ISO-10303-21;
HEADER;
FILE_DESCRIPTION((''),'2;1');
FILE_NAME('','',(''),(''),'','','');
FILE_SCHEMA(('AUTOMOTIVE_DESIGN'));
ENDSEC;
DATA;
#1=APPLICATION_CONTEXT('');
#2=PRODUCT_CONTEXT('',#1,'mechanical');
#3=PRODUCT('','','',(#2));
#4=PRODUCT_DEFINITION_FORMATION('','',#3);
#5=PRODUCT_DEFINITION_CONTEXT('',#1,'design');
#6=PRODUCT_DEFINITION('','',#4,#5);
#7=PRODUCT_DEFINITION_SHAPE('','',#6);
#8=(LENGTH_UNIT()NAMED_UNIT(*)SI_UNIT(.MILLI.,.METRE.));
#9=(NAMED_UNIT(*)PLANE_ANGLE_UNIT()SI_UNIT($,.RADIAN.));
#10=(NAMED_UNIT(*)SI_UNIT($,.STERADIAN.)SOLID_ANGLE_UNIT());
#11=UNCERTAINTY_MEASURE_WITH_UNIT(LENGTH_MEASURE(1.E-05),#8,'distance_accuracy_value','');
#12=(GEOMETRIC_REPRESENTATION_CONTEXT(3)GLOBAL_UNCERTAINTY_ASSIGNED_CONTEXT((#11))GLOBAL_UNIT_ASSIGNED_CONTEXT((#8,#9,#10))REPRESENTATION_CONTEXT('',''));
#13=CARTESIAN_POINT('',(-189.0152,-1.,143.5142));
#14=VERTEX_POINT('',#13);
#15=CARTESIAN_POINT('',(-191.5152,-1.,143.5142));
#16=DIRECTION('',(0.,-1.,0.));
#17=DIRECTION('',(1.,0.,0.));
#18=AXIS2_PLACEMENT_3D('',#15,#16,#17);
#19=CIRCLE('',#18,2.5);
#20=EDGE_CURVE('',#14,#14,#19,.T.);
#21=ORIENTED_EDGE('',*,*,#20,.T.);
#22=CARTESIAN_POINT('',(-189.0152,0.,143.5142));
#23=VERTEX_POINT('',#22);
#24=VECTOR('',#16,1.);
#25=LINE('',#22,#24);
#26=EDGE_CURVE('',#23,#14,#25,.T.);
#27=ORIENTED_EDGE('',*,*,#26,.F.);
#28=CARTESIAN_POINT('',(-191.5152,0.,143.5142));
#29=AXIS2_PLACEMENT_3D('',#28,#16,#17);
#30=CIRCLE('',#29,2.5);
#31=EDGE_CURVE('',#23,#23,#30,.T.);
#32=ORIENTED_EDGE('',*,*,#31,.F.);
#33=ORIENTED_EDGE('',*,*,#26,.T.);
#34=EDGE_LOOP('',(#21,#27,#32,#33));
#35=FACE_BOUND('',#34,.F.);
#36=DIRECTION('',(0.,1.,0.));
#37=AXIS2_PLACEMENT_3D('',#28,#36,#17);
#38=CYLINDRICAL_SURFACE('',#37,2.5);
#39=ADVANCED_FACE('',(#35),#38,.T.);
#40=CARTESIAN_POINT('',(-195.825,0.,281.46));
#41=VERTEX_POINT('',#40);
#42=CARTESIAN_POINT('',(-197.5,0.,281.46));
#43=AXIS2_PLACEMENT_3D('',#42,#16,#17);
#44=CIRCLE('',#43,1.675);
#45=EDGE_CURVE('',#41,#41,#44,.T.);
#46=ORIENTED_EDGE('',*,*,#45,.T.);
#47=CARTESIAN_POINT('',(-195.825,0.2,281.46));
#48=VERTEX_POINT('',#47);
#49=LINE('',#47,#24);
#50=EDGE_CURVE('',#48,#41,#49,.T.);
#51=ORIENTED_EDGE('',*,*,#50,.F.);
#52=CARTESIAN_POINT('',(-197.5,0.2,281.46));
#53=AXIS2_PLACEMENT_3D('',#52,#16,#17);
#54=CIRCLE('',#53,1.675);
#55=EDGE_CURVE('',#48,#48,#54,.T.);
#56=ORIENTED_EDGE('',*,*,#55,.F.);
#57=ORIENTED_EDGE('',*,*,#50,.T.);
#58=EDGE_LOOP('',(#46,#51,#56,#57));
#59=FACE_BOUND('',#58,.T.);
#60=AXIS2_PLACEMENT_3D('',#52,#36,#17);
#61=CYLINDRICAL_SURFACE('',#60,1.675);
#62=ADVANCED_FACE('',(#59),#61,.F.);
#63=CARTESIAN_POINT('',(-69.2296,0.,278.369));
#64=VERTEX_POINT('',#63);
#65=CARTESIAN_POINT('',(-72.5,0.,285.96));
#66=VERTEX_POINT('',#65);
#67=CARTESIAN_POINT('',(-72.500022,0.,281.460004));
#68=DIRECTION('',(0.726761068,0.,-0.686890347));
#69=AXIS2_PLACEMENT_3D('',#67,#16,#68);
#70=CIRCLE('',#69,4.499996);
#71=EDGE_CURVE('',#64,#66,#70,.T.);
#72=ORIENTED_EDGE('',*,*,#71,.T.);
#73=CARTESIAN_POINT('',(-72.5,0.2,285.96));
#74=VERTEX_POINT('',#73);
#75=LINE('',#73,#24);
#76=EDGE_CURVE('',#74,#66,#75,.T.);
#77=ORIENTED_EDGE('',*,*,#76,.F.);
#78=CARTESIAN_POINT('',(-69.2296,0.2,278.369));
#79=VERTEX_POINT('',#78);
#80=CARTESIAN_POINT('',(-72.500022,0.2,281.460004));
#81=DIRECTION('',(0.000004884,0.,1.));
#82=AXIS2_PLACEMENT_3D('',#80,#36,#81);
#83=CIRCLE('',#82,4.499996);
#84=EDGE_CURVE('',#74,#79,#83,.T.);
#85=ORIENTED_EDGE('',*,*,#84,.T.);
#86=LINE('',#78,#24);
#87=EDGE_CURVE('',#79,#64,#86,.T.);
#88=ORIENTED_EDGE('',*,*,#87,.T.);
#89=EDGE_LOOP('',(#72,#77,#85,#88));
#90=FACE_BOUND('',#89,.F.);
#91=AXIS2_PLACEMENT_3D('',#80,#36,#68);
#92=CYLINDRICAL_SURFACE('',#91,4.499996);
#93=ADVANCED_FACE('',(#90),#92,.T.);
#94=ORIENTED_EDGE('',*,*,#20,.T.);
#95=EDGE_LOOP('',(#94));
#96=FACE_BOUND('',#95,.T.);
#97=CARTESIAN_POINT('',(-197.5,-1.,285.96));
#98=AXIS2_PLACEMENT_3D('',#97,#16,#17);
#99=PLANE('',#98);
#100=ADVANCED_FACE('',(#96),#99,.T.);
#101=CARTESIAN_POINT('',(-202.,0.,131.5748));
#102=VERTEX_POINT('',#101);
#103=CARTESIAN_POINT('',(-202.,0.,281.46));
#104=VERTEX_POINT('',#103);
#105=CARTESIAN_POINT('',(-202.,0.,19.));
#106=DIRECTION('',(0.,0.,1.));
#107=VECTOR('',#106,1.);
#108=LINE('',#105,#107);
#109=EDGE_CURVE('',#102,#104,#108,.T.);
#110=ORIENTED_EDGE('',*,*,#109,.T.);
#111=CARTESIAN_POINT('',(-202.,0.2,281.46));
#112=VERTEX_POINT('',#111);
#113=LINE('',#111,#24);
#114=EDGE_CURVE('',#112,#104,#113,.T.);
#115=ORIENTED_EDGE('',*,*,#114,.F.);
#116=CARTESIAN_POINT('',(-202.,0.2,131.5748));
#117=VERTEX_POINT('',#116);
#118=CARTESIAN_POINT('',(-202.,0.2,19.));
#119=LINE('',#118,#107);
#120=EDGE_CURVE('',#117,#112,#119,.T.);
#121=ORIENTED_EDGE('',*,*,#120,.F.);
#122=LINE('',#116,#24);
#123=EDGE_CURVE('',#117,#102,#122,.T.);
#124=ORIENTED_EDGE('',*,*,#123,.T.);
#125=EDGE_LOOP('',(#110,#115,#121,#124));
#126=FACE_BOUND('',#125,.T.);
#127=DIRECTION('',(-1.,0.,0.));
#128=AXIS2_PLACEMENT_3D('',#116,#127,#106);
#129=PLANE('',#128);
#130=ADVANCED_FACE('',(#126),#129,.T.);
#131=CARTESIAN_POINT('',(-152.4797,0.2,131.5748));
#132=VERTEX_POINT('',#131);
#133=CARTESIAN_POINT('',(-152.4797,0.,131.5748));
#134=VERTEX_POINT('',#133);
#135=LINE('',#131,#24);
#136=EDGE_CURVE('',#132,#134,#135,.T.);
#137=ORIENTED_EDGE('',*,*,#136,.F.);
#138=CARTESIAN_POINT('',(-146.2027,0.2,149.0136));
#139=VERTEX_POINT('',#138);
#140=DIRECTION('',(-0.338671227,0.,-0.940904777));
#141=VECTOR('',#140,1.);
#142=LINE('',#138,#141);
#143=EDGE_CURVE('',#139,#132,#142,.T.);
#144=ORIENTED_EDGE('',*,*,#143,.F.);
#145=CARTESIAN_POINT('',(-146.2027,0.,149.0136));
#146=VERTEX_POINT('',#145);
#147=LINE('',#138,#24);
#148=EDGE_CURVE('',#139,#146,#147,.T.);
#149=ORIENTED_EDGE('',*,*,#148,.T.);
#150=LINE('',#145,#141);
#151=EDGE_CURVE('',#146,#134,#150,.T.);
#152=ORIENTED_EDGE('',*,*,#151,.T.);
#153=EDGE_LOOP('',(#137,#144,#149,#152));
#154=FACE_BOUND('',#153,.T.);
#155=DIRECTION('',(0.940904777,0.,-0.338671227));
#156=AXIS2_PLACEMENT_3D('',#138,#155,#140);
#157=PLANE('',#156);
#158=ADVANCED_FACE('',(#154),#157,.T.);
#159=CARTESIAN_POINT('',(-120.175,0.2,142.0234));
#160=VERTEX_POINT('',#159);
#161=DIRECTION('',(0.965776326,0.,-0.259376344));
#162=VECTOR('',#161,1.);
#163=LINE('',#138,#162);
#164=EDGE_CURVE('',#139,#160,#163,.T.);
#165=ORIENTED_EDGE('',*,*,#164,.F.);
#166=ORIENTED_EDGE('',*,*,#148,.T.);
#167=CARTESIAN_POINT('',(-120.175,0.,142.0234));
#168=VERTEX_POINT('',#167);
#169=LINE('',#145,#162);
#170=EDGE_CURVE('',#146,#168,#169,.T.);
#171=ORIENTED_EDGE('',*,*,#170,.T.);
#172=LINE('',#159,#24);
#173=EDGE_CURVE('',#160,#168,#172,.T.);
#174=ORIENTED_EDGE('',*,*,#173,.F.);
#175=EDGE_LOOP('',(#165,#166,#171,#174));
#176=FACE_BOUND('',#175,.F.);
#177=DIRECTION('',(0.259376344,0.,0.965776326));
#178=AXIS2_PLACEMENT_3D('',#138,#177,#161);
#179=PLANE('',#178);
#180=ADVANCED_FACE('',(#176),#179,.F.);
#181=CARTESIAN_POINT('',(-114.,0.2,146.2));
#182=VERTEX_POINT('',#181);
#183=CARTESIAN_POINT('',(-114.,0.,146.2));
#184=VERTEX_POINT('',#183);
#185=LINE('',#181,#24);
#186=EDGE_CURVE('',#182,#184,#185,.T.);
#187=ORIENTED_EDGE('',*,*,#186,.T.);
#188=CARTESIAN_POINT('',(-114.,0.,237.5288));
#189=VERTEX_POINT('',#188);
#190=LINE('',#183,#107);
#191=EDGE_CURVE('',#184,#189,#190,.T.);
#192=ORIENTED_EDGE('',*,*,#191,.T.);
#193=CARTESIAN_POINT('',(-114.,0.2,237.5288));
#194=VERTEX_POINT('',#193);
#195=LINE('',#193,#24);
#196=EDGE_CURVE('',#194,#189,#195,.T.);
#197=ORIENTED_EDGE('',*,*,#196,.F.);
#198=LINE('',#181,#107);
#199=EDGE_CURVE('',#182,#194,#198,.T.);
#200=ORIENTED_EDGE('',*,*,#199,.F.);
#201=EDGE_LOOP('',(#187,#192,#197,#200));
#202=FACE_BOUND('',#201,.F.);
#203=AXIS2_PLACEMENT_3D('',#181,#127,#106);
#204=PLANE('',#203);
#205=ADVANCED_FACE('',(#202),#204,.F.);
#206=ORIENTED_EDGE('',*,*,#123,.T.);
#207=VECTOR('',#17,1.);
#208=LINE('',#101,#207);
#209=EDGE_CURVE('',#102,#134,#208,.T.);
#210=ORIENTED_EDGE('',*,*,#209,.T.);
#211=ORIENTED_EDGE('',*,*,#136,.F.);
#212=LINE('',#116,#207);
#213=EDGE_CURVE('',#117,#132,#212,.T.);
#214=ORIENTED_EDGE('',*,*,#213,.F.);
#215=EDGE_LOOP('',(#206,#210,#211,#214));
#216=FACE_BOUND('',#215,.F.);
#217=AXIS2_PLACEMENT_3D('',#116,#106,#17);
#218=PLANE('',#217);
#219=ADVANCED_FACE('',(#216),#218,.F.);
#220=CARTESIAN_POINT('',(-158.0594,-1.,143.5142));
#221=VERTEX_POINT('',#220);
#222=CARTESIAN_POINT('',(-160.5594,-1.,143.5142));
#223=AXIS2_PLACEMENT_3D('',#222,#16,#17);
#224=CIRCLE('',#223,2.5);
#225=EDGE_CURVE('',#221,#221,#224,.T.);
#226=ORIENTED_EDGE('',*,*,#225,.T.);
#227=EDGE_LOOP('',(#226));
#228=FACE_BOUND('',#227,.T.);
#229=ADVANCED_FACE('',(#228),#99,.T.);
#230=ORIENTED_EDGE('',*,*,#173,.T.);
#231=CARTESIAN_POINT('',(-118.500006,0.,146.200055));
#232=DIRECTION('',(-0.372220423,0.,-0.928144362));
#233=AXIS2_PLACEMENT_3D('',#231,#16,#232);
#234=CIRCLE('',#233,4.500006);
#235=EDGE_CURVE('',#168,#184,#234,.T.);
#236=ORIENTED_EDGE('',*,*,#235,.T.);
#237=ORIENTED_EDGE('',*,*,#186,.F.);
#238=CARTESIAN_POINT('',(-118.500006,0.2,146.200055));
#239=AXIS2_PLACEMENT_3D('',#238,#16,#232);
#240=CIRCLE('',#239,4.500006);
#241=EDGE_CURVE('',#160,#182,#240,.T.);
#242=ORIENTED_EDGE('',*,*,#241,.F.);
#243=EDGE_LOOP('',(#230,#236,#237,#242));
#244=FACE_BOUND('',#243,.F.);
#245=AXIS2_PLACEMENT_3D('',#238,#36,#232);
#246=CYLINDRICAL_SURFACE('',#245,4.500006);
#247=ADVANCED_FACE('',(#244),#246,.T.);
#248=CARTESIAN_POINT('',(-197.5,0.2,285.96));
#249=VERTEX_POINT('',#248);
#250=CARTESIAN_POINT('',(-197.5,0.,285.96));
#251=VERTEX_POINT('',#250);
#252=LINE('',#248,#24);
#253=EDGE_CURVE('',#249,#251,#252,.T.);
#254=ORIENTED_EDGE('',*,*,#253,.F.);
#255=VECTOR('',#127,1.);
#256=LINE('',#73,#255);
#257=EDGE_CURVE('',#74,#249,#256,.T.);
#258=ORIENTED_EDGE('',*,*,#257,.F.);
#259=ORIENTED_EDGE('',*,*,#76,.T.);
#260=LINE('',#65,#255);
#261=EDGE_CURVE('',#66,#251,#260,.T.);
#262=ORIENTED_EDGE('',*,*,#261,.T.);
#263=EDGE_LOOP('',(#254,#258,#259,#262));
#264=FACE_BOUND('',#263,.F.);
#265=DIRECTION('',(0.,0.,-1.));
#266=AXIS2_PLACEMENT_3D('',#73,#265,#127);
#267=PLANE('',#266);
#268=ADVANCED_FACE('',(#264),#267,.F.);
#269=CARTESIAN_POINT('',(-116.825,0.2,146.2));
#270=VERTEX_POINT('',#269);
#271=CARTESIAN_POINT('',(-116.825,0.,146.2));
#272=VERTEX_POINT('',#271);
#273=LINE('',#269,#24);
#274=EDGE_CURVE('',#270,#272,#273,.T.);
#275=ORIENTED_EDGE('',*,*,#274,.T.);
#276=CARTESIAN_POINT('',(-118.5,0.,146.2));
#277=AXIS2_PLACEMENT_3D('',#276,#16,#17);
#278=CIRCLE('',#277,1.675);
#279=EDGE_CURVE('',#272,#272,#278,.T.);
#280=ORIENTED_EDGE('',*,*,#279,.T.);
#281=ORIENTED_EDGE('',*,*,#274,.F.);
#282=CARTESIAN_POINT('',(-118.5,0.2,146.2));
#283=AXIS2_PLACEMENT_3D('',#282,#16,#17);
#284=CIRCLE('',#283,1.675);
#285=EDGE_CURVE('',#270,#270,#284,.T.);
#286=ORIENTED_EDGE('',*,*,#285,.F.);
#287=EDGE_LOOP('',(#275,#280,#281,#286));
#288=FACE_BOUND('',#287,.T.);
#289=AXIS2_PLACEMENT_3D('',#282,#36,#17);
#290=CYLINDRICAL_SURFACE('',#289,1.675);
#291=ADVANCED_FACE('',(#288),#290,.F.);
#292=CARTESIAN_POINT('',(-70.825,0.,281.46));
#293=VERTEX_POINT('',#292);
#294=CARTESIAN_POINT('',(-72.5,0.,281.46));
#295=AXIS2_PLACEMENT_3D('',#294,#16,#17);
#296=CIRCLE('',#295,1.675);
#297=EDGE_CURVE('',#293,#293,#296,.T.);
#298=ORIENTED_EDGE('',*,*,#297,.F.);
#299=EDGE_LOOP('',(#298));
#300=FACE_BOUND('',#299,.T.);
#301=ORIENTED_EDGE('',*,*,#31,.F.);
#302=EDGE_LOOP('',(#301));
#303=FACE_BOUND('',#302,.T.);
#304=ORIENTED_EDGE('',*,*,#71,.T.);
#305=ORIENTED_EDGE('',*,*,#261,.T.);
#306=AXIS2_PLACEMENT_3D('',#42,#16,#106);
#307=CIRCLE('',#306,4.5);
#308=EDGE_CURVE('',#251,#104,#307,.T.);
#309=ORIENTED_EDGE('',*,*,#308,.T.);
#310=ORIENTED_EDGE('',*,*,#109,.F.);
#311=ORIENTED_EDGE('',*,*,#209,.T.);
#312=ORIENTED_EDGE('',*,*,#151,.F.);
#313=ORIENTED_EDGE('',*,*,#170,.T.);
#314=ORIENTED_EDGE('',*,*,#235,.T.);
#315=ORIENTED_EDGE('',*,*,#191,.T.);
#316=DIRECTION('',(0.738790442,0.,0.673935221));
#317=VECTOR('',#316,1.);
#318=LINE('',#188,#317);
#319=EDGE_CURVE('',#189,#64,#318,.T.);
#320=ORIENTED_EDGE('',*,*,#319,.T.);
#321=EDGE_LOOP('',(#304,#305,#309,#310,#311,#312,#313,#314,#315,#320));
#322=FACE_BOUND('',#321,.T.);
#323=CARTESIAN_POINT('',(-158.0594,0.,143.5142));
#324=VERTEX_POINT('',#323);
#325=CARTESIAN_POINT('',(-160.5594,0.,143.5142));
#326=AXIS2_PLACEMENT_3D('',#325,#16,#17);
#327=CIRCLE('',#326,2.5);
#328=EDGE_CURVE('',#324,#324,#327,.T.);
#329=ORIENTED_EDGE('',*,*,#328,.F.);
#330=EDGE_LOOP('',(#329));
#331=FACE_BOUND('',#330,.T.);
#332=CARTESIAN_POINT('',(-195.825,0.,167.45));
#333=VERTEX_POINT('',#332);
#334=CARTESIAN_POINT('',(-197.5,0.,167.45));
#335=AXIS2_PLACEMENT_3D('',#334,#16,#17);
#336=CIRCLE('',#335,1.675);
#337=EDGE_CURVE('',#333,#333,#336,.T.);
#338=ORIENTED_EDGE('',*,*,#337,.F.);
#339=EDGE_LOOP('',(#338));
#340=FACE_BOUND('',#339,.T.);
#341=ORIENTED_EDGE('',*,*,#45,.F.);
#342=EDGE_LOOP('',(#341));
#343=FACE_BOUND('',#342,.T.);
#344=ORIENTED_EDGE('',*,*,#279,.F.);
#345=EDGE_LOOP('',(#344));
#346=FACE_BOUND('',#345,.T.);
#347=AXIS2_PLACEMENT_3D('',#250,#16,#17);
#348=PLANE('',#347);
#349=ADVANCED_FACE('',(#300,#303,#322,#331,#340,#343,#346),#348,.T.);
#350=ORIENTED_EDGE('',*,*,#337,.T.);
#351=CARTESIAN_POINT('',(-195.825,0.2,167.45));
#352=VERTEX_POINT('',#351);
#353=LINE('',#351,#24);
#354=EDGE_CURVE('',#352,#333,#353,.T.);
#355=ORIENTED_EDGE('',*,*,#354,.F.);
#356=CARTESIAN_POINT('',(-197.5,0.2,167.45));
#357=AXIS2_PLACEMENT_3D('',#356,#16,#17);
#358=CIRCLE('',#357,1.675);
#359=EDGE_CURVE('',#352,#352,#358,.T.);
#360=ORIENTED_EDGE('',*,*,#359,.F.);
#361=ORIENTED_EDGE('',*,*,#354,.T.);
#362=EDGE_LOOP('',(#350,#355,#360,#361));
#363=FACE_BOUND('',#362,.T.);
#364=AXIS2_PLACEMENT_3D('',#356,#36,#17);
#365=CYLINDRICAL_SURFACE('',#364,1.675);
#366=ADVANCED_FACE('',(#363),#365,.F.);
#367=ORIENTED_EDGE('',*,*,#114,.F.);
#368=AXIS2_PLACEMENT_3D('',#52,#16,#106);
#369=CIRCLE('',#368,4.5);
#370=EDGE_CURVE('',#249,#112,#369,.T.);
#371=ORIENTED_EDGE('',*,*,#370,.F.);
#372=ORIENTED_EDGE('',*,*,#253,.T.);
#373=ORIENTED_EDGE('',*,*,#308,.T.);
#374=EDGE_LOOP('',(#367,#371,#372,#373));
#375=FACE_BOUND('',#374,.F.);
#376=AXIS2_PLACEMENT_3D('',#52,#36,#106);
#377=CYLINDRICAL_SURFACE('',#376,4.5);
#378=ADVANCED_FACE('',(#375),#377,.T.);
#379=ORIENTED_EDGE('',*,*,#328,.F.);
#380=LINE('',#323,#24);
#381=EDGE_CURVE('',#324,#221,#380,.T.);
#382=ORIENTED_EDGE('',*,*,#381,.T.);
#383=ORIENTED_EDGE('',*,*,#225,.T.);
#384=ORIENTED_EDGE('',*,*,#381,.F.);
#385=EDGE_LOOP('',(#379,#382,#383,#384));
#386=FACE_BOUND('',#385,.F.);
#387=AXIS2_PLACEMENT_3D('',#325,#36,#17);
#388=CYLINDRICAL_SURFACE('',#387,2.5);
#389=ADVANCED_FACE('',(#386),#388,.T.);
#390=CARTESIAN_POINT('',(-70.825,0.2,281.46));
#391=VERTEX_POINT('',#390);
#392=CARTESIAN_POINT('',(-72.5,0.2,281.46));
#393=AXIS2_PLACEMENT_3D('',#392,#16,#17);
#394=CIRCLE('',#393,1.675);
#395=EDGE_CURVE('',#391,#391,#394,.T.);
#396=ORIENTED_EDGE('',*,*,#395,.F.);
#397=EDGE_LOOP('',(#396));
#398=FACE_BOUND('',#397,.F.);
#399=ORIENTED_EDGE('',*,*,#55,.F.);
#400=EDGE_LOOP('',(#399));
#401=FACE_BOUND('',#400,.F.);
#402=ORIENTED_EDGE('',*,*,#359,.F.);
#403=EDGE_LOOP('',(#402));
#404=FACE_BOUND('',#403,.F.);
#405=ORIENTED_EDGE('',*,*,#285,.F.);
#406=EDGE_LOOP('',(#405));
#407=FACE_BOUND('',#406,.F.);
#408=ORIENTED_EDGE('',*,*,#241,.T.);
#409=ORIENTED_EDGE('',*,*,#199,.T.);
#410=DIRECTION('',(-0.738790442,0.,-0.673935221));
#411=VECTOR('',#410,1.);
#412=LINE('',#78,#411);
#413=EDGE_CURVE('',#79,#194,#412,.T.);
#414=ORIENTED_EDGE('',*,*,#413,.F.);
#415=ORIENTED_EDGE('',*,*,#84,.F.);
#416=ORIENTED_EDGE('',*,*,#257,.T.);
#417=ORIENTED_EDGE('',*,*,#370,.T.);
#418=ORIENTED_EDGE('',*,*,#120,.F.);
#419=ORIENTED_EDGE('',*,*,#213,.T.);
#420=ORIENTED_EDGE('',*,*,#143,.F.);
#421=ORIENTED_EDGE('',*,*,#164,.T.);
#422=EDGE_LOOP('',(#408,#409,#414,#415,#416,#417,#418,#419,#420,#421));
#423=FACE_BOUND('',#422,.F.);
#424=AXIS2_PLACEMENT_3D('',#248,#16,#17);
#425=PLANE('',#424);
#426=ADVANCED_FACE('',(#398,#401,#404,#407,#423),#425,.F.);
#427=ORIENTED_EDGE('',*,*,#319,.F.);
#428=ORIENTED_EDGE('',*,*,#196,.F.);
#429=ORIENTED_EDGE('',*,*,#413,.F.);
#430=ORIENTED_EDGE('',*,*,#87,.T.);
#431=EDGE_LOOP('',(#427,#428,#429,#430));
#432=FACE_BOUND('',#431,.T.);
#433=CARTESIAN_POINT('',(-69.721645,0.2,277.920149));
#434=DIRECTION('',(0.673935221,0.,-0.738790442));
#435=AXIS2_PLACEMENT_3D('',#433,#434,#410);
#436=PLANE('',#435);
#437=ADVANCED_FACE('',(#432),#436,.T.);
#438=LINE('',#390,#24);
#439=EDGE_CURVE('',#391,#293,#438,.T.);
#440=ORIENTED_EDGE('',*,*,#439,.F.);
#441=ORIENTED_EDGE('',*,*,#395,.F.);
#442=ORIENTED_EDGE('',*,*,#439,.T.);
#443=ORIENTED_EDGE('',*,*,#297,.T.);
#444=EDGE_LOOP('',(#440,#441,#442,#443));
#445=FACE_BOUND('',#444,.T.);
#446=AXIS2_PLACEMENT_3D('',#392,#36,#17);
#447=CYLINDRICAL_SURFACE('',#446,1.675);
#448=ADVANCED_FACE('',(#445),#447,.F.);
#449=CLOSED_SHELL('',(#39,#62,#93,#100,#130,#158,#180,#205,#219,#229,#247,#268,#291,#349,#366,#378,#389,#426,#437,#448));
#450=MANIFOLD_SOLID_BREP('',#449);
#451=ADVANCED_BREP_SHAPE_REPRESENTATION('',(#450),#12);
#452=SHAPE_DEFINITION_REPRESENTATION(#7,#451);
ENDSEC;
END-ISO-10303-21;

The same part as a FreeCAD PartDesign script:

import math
import FreeCAD as App
import Part
import Sketcher

V = App.Vector

doc = App.newDocument("Part")
body = doc.addObject("PartDesign::Body", "Body")

sketch1 = doc.addObject("Sketcher::SketchObject", "Sketch")
body.addObject(sketch1)
sketch1.AttachmentSupport = (doc.XZ_Plane, [""])
sketch1.MapMode = "FlatFace"
sketch1.AttachmentOffset = App.Placement(V(0, 0, -0.2), App.Rotation())
sketch1.addGeometry(Part.LineSegment(V(-202, 281.5, 0), V(-202, 131.6, 0)), False)
sketch1.addGeometry(Part.LineSegment(V(-202, 131.6, 0), V(-152.5, 131.6, 0)), False)
sketch1.addGeometry(Part.LineSegment(V(-152.5, 131.6, 0), V(-146.2, 149, 0)), False)
sketch1.addGeometry(Part.LineSegment(V(-146.2, 149, 0), V(-120.2, 142, 0)), False)
sketch1.addGeometry(Part.ArcOfCircle(Part.Circle(V(-118.5, 146.2, 0), V(0, 0, 1), 4.5), math.radians(-112), math.radians(0)), False)
sketch1.addGeometry(Part.LineSegment(V(-114, 146.2, 0), V(-114, 237.5, 0)), False)
sketch1.addGeometry(Part.LineSegment(V(-114, 237.5, 0), V(-69.2, 278.4, 0)), False)
sketch1.addGeometry(Part.ArcOfCircle(Part.Circle(V(-72.5, 281.5, 0), V(0, 0, 1), 4.5), math.radians(-43), math.radians(90)), False)
sketch1.addGeometry(Part.LineSegment(V(-72.5, 286, 0), V(-197.5, 286, 0)), False)
sketch1.addGeometry(Part.ArcOfCircle(Part.Circle(V(-197.5, 281.5, 0), V(0, 0, 1), 4.5), math.radians(90), math.radians(180)), False)
sketch1.addGeometry(Part.Circle(V(-197.5, 167.4, 0), V(0, 0, 1), 1.7), False)
sketch1.addGeometry(Part.Circle(V(-197.5, 281.5, 0), V(0, 0, 1), 1.7), False)
sketch1.addGeometry(Part.Circle(V(-72.5, 281.5, 0), V(0, 0, 1), 1.7), False)
sketch1.addGeometry(Part.Circle(V(-118.5, 146.2, 0), V(0, 0, 1), 1.7), False)
sketch1.addConstraint(Sketcher.Constraint("Coincident", 0, 2, 1, 1))
sketch1.addConstraint(Sketcher.Constraint("Coincident", 1, 2, 2, 1))
sketch1.addConstraint(Sketcher.Constraint("Coincident", 2, 2, 3, 1))
sketch1.addConstraint(Sketcher.Constraint("Coincident", 3, 2, 4, 1))
sketch1.addConstraint(Sketcher.Constraint("Tangent", 4, 2, 5, 1))
sketch1.addConstraint(Sketcher.Constraint("Coincident", 5, 2, 6, 1))
sketch1.addConstraint(Sketcher.Constraint("Coincident", 6, 2, 7, 1))
sketch1.addConstraint(Sketcher.Constraint("Tangent", 7, 2, 8, 1))
sketch1.addConstraint(Sketcher.Constraint("Tangent", 8, 2, 9, 1))
sketch1.addConstraint(Sketcher.Constraint("Tangent", 9, 2, 0, 1))
sketch1.addConstraint(Sketcher.Constraint("Vertical", 0))
sketch1.addConstraint(Sketcher.Constraint("Horizontal", 1))
sketch1.addConstraint(Sketcher.Constraint("Vertical", 5))
sketch1.addConstraint(Sketcher.Constraint("Horizontal", 8))
sketch1.addConstraint(Sketcher.Constraint("Coincident", 11, 3, 9, 3))
sketch1.addConstraint(Sketcher.Constraint("Coincident", 12, 3, 7, 3))
sketch1.addConstraint(Sketcher.Constraint("Coincident", 13, 3, 4, 3))
sketch1.addConstraint(Sketcher.Constraint("Equal", 4, 7))
sketch1.addConstraint(Sketcher.Constraint("Equal", 7, 9))
sketch1.addConstraint(Sketcher.Constraint("Equal", 10, 11))
sketch1.addConstraint(Sketcher.Constraint("Equal", 11, 12))
sketch1.addConstraint(Sketcher.Constraint("Equal", 12, 13))
sketch1.addConstraint(Sketcher.Constraint("Vertical", 9, 3, 10, 3))
sketch1.addConstraint(Sketcher.Constraint("Radius", 4, 4.5))
sketch1.addConstraint(Sketcher.Constraint("Diameter", 10, 3.35))
sketch1.addConstraint(Sketcher.Constraint("DistanceX", 8, 2, 8, 1, 125.0))
sketch1.addConstraint(Sketcher.Constraint("DistanceX", 0, 2, -1, 1, 202.0))
sketch1.addConstraint(Sketcher.Constraint("DistanceX", 4, 2, -1, 1, 114.0))
sketch1.addConstraint(Sketcher.Constraint("DistanceY", -1, 1, 4, 3, 146.2))
sketch1.addConstraint(Sketcher.Constraint("Distance", 3, 26.95))
sketch1.addConstraint(Sketcher.Constraint("DistanceY", -1, 1, 7, 3, 281.46))
sketch1.addConstraint(Sketcher.Constraint("DistanceY", -1, 1, 10, 3, 167.45))
sketch1.addConstraint(Sketcher.Constraint("Distance", 2, 18.534))
sketch1.addConstraint(Sketcher.Constraint("DistanceX", 1, 1, 1, 2, 49.5203))
sketch1.addConstraint(Sketcher.Constraint("DistanceY", 0, 2, 0, 1, 149.8852))
sketch1.addConstraint(Sketcher.Constraint("DistanceY", 5, 1, 5, 2, 91.3288))
sketch1.addConstraint(Sketcher.Constraint("DistanceX", 3, 2, -1, 1, 120.175))
sketch1.addConstraint(Sketcher.Constraint("DistanceY", -1, 1, 6, 2, 278.369))
pad1 = doc.addObject("PartDesign::Pad", "Pad")
body.addObject(pad1)
pad1.Profile = sketch1
pad1.Length = 0.2

sketch2 = doc.addObject("Sketcher::SketchObject", "Sketch001")
body.addObject(sketch2)
sketch2.AttachmentSupport = (doc.XZ_Plane, [""])
sketch2.MapMode = "FlatFace"
sketch2.addGeometry(Part.Circle(V(-191.5, 143.5, 0), V(0, 0, 1), 2.5), False)
sketch2.addGeometry(Part.Circle(V(-160.6, 143.5, 0), V(0, 0, 1), 2.5), False)
sketch2.addConstraint(Sketcher.Constraint("Equal", 0, 1))
sketch2.addConstraint(Sketcher.Constraint("Horizontal", 0, 3, 1, 3))
sketch2.addConstraint(Sketcher.Constraint("Diameter", 0, 5.0))
sketch2.addConstraint(Sketcher.Constraint("DistanceX", 0, 3, -1, 1, 191.5152))
sketch2.addConstraint(Sketcher.Constraint("DistanceY", -1, 1, 0, 3, 143.5142))
sketch2.addConstraint(Sketcher.Constraint("DistanceX", 1, 3, -1, 1, 160.5594))
pad2 = doc.addObject("PartDesign::Pad", "Pad001")
body.addObject(pad2)
pad2.Profile = sketch2
pad2.Length = 1

doc.recompute()
